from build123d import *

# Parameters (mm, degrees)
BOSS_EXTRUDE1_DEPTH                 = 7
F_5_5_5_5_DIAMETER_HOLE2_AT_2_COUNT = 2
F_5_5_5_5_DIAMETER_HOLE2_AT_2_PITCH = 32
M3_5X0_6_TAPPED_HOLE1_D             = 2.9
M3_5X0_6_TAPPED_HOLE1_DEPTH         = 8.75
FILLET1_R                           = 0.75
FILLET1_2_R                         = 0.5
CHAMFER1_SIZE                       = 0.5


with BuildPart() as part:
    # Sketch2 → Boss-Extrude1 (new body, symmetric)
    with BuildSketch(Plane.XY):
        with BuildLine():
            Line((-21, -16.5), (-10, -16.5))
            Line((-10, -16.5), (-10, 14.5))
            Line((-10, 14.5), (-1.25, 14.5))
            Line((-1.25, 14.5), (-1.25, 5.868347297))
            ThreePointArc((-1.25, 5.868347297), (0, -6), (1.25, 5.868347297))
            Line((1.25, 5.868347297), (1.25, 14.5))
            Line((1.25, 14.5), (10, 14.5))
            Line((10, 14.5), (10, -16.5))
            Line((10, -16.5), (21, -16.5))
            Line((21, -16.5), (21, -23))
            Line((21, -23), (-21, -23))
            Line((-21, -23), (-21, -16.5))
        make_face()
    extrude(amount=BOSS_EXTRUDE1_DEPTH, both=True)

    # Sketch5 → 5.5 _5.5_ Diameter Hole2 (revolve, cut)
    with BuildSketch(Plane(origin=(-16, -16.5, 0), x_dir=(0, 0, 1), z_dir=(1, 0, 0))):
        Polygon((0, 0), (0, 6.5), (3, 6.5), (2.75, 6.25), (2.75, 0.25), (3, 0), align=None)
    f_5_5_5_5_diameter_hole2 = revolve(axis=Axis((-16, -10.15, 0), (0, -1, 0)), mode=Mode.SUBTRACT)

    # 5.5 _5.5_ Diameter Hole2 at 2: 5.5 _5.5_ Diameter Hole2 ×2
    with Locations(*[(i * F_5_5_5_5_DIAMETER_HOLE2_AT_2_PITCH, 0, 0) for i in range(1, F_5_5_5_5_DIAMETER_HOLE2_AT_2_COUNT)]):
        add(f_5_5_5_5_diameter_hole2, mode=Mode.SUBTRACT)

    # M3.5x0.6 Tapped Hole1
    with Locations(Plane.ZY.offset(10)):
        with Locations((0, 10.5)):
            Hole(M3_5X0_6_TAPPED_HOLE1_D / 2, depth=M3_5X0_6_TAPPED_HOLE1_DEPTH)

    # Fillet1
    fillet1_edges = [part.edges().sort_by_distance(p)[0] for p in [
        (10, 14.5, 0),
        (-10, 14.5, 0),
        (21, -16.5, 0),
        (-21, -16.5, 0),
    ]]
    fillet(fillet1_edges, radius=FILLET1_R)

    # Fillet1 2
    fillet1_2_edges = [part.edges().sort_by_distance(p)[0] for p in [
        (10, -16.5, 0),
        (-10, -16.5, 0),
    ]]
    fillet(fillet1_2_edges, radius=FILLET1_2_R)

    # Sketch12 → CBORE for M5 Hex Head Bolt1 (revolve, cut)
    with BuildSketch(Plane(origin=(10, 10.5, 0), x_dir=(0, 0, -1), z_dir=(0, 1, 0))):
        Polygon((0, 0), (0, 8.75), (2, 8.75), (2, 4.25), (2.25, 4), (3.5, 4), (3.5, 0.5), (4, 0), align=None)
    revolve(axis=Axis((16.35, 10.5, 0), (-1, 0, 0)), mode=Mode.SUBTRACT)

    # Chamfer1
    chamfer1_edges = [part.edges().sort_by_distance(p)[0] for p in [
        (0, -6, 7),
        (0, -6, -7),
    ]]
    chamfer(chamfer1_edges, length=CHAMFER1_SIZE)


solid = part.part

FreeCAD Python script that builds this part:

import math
import FreeCAD as App
import Part
import Sketcher
Q = App.Units.Quantity


def edges_at(feature, points):
    """Names of the edges that pass closest to the given points."""
    edges = feature.Shape.Edges
    near = lambda p: min(range(len(edges)), key=lambda i: edges[i].distToShape(Part.Vertex(*p))[0])
    return sorted({f"Edge{near(p) + 1}" for p in points})


def add_polygon(sketch, points):
    """Adds a closed chain of lines whose ends are joined by coincident constraints."""
    first, n = sketch.GeometryCount, len(points)
    for a, b in zip(points, points[1:] + points[:1]):
        sketch.addGeometry(Part.LineSegment(App.Vector(*a, 0), App.Vector(*b, 0)), False)
    for i in range(n):
        sketch.addConstraint(Sketcher.Constraint("Coincident", first + i, 2, first + (i + 1) % n, 1))

doc = App.newDocument("Part")
params = doc.addObject("Spreadsheet::Sheet", "Params")
for row, (alias, value) in enumerate([
    ("sketch1_radius", "6 mm"),
    ("sketch1_width", "11 mm"),
    ("sketch1_width2", "42 mm"),
    ("sketch1_height", "31 mm"),
    ("sketch1_height2", "6.5 mm"),
    ("pad1_length", "14 mm"),
    ("sketch2_width", "6 mm"),
    ("sketch2_height", "3 mm"),
    ("sketch2_width2", "6.5 mm"),
    ("groove_angle", "360 deg"),
    ("linearpattern_pitch", "32 mm"),
    ("sketch3_diameter", "2.9 mm"),
    ("hole_diameter", "2.9 mm"),
    ("hole_depth", "8.75 mm"),
    ("fillet_radius", "0.75 mm"),
    ("fillet2_radius", "0.5 mm"),
    ("sketch4_height", "4 mm"),
    ("sketch4_height2", "2 mm"),
    ("sketch4_width", "3.5 mm"),
    ("sketch4_width2", "4.5 mm"),
    ("sketch4_width3", "8.75 mm"),
    ("groove2_angle", "360 deg"),
    ("chamfer_size", "0.5 mm"),
], start=1):
    params.set(f"A{row}", alias)
    params.set(f"B{row}", "=" + value)
    params.setAlias(f"B{row}", alias)

body = doc.addObject("PartDesign::Body", "Body")

# Sketch on XY plane
sketch1 = body.newObject("Sketcher::SketchObject", "Sketch")
sketch1.AttachmentSupport = (doc.getObject("XY_Plane"), [""])
sketch1.MapMode = "FlatFace"
sketch1.addGeometry([
    Part.LineSegment(App.Vector(-10, -16.5, 0), App.Vector(-21, -16.5, 0)),  # 0
    Part.LineSegment(App.Vector(-21, -16.5, 0), App.Vector(-21, -23, 0)),  # 1
    Part.LineSegment(App.Vector(-21, -23, 0), App.Vector(21, -23, 0)),  # 2
    Part.LineSegment(App.Vector(21, -23, 0), App.Vector(21, -16.5, 0)),  # 3
    Part.LineSegment(App.Vector(21, -16.5, 0), App.Vector(10, -16.5, 0)),  # 4
    Part.LineSegment(App.Vector(10, -16.5, 0), App.Vector(10, 14.5, 0)),  # 5
    Part.LineSegment(App.Vector(10, 14.5, 0), App.Vector(1.25, 14.5, 0)),  # 6
    Part.LineSegment(App.Vector(1.25, 14.5, 0), App.Vector(1.25, 5.868347, 0)),  # 7
    Part.ArcOfCircle(Part.Circle(App.Vector(0, 0, 0), App.Vector(0, 0, 1), 6), math.radians(102.024699), math.radians(437.975301)),  # 8
    Part.LineSegment(App.Vector(-1.25, 5.868347, 0), App.Vector(-1.25, 14.5, 0)),  # 9
    Part.LineSegment(App.Vector(-1.25, 14.5, 0), App.Vector(-10, 14.5, 0)),  # 10
    Part.LineSegment(App.Vector(-10, 14.5, 0), App.Vector(-10, -16.5, 0)),  # 11
], False)
sketch1.addConstraint([
    Sketcher.Constraint("Coincident", 0, 2, 1, 1),
    Sketcher.Constraint("Coincident", 1, 2, 2, 1),
    Sketcher.Constraint("Coincident", 2, 2, 3, 1),
    Sketcher.Constraint("Coincident", 3, 2, 4, 1),
    Sketcher.Constraint("Coincident", 4, 2, 5, 1),
    Sketcher.Constraint("Coincident", 5, 2, 6, 1),
    Sketcher.Constraint("Coincident", 6, 2, 7, 1),
    Sketcher.Constraint("Coincident", 7, 2, 8, 2),
    Sketcher.Constraint("Coincident", 8, 1, 9, 1),
    Sketcher.Constraint("Coincident", 9, 2, 10, 1),
    Sketcher.Constraint("Coincident", 10, 2, 11, 1),
    Sketcher.Constraint("Coincident", 11, 2, 0, 1),
    Sketcher.Constraint("Horizontal", 0),
    Sketcher.Constraint("Vertical", 1),
    Sketcher.Constraint("Horizontal", 2),
    Sketcher.Constraint("Vertical", 3),
    Sketcher.Constraint("Horizontal", 4),
    Sketcher.Constraint("Vertical", 5),
    Sketcher.Constraint("Horizontal", 6),
    Sketcher.Constraint("Vertical", 7),
    Sketcher.Constraint("Vertical", 9),
    Sketcher.Constraint("Horizontal", 10),
    Sketcher.Constraint("Vertical", 11),
    Sketcher.Constraint("Coincident", 8, 3, -1, 1),
    Sketcher.Constraint("Symmetric", 0, 2, 3, 2, -2),
    Sketcher.Constraint("Symmetric", 6, 2, 9, 2, -2),
    Sketcher.Constraint("Equal", 0, 4),
    Sketcher.Constraint("Radius", 8, 6.0),
    Sketcher.Constraint("DistanceX", 0, 2, 0, 1, 11.0),
    Sketcher.Constraint("DistanceX", 2, 1, 2, 2, 42.0),
    Sketcher.Constraint("DistanceY", 5, 1, 5, 2, 31.0),
    Sketcher.Constraint("DistanceY", 1, 2, 1, 1, 6.5),
    Sketcher.Constraint("DistanceY", 1, 2, -1, 1, 23.0),
    Sketcher.Constraint("DistanceX", 6, 2, 6, 1, 8.75),
])
sketch1.setExpression("Constraints[27]", "Params.sketch1_radius")
sketch1.setExpression("Constraints[28]", "Params.sketch1_width")
sketch1.setExpression("Constraints[29]", "Params.sketch1_width2")
sketch1.setExpression("Constraints[30]", "Params.sketch1_height")
sketch1.setExpression("Constraints[31]", "Params.sketch1_height2")
pad1 = body.newObject("PartDesign::Pad", "Pad")
pad1.Profile = sketch1
pad1.setExpression("Length", "Params.pad1_length")
pad1.Midplane = True

# Sketch on YZ plane
sketch2 = body.newObject("Sketcher::SketchObject", "Sketch001")
sketch2.AttachmentSupport = (doc.getObject("YZ_Plane"), [""])
sketch2.MapMode = "FlatFace"
sketch2.AttachmentOffset = App.Placement(App.Vector(0, 0, -16), App.Rotation())
add_polygon(sketch2, [(-23, 0), (-16.5, 0), (-16.5, 3), (-16.75, 2.75), (-22.75, 2.75), (-23, 3)])  # lines 0-5
sketch2.addConstraint([
    Sketcher.Constraint("Horizontal", 0),
    Sketcher.Constraint("Vertical", 1),
    Sketcher.Constraint("Horizontal", 3),
    Sketcher.Constraint("Vertical", 5),
    Sketcher.Constraint("PointOnObject", 0, 2, -1),
    Sketcher.Constraint("Perpendicular", 2, 4),
    Sketcher.Constraint("Horizontal", 1, 2, 4, 2),
    Sketcher.Constraint("Equal", 2, 4),
    Sketcher.Constraint("DistanceX", 3, 2, 3, 1, 6.0),
    Sketcher.Constraint("DistanceY", 1, 1, 1, 2, 3.0),
    Sketcher.Constraint("DistanceX", 0, 1, 0, 2, 6.5),
    Sketcher.Constraint("DistanceX", 4, 2, -1, 1, 23.0),
])
sketch2.setExpression("Constraints[14]", "Params.sketch2_width")
sketch2.setExpression("Constraints[15]", "Params.sketch2_height")
sketch2.setExpression("Constraints[16]", "Params.sketch2_width2")
groove = body.newObject("PartDesign::Groove", "Groove")
groove.Profile = sketch2
groove.ReferenceAxis = (sketch2, ["H_Axis"])
groove.setExpression("Angle", "Params.groove_angle")
doc.recompute()

linearpattern = body.newObject("PartDesign::LinearPattern", "LinearPattern")
linearpattern.Originals = [groove]
linearpattern.Direction = (doc.getObject("X_Axis"), [""])
linearpattern.Mode = "offset"
linearpattern.setExpression("Offset", "Params.linearpattern_pitch")
linearpattern.Occurrences = 2
body.Tip = linearpattern

# Sketch on YZ plane
sketch3 = body.newObject("Sketcher::SketchObject", "Sketch002")
sketch3.AttachmentSupport = (doc.getObject("YZ_Plane"), [""])
sketch3.MapMode = "FlatFace"
sketch3.AttachmentOffset = App.Placement(App.Vector(0, 0, -10), App.Rotation())
sketch3.addGeometry(Part.Circle(App.Vector(10.5, 0, 0), App.Vector(0, 0, 1), 1.45), False)
sketch3.addConstraint([
    Sketcher.Constraint("PointOnObject", 0, 3, -1),
    Sketcher.Constraint("Diameter", 0, 2.9),
    Sketcher.Constraint("DistanceX", -1, 1, 0, 3, 10.5),
])
sketch3.setExpression("Constraints[1]", "Params.sketch3_diameter")
doc.recompute()
hole = body.newObject("PartDesign::Hole", "Hole")
hole.Profile = sketch3
hole.ThreadType = "None"
hole.setExpression("Diameter", "Params.hole_diameter")
hole.DepthType = "Dimension"
hole.setExpression("Depth", "Params.hole_depth")
hole.DrillPoint = "Flat"
hole.Reversed = True
doc.recompute()

fillet = body.newObject("PartDesign::Fillet", "Fillet")
fillet.Base = (hole, edges_at(hole, [
    (10, 14.5, 0),
    (-10, 14.5, 0),
    (21, -16.5, 0),
    (-21, -16.5, 0),
]))
fillet.setExpression("Radius", "Params.fillet_radius")
doc.recompute()

fillet2 = body.newObject("PartDesign::Fillet", "Fillet001")
fillet2.Base = (fillet, edges_at(fillet, [(10, -16.5, 0), (-10, -16.5, 0)]))
fillet2.setExpression("Radius", "Params.fillet2_radius")

# Sketch on XZ plane
sketch4 = body.newObject("Sketcher::SketchObject", "Sketch003")
sketch4.AttachmentSupport = (doc.getObject("XZ_Plane"), [""])
sketch4.MapMode = "FlatFace"
sketch4.AttachmentOffset = App.Placement(App.Vector(0, 0, -10.5), App.Rotation())
add_polygon(sketch4, [(1.25, 0), (10, 0), (10, -4), (9.5, -3.5), (6, -3.5), (6, -2.25), (5.75, -2), (1.25, -2)])  # lines 0-7
sketch4.addConstraint([
    Sketcher.Constraint("Horizontal", 0),
    Sketcher.Constraint("Vertical", 1),
    Sketcher.Constraint("Horizontal", 3),
    Sketcher.Constraint("Vertical", 4),
    Sketcher.Constraint("Horizontal", 6),
    Sketcher.Constraint("Vertical", 7),
    Sketcher.Constraint("PointOnObject", 0, 2, -1),
    Sketcher.Constraint("Parallel", 2, 5),
    Sketcher.Constraint("DistanceY", 1, 2, 1, 1, 4.0),
    Sketcher.Constraint("DistanceY", 7, 1, 7, 2, 2.0),
    Sketcher.Constraint("Angle", 2, Q("135 deg")),
    Sketcher.Constraint("DistanceX", 3, 2, 3, 1, 3.5),
    Sketcher.Constraint("DistanceX", 6, 2, 6, 1, 4.5),
    Sketcher.Constraint("DistanceX", -1, 1, 0, 2, 10.0),
    Sketcher.Constraint("DistanceX", -1, 1, 3, 2, 6.0),
    Sketcher.Constraint("DistanceX", 0, 1, 0, 2, 8.75),
])
sketch4.setExpression("Constraints[16]", "Params.sketch4_height")
sketch4.setExpression("Constraints[17]", "Params.sketch4_height2")
sketch4.setExpression("Constraints[19]", "Params.sketch4_width")
sketch4.setExpression("Constraints[20]", "Params.sketch4_width2")
sketch4.setExpression("Constraints[23]", "Params.sketch4_width3")
groove2 = body.newObject("PartDesign::Groove", "Groove001")
groove2.Profile = sketch4
groove2.ReferenceAxis = (sketch4, ["H_Axis"])
groove2.setExpression("Angle", "Params.groove2_angle")
doc.recompute()

chamfer = body.newObject("PartDesign::Chamfer", "Chamfer")
chamfer.Base = (groove2, edges_at(groove2, [(0, -6, 7), (0, -6, -7)]))
chamfer.setExpression("Size", "Params.chamfer_size")

doc.recompute()
